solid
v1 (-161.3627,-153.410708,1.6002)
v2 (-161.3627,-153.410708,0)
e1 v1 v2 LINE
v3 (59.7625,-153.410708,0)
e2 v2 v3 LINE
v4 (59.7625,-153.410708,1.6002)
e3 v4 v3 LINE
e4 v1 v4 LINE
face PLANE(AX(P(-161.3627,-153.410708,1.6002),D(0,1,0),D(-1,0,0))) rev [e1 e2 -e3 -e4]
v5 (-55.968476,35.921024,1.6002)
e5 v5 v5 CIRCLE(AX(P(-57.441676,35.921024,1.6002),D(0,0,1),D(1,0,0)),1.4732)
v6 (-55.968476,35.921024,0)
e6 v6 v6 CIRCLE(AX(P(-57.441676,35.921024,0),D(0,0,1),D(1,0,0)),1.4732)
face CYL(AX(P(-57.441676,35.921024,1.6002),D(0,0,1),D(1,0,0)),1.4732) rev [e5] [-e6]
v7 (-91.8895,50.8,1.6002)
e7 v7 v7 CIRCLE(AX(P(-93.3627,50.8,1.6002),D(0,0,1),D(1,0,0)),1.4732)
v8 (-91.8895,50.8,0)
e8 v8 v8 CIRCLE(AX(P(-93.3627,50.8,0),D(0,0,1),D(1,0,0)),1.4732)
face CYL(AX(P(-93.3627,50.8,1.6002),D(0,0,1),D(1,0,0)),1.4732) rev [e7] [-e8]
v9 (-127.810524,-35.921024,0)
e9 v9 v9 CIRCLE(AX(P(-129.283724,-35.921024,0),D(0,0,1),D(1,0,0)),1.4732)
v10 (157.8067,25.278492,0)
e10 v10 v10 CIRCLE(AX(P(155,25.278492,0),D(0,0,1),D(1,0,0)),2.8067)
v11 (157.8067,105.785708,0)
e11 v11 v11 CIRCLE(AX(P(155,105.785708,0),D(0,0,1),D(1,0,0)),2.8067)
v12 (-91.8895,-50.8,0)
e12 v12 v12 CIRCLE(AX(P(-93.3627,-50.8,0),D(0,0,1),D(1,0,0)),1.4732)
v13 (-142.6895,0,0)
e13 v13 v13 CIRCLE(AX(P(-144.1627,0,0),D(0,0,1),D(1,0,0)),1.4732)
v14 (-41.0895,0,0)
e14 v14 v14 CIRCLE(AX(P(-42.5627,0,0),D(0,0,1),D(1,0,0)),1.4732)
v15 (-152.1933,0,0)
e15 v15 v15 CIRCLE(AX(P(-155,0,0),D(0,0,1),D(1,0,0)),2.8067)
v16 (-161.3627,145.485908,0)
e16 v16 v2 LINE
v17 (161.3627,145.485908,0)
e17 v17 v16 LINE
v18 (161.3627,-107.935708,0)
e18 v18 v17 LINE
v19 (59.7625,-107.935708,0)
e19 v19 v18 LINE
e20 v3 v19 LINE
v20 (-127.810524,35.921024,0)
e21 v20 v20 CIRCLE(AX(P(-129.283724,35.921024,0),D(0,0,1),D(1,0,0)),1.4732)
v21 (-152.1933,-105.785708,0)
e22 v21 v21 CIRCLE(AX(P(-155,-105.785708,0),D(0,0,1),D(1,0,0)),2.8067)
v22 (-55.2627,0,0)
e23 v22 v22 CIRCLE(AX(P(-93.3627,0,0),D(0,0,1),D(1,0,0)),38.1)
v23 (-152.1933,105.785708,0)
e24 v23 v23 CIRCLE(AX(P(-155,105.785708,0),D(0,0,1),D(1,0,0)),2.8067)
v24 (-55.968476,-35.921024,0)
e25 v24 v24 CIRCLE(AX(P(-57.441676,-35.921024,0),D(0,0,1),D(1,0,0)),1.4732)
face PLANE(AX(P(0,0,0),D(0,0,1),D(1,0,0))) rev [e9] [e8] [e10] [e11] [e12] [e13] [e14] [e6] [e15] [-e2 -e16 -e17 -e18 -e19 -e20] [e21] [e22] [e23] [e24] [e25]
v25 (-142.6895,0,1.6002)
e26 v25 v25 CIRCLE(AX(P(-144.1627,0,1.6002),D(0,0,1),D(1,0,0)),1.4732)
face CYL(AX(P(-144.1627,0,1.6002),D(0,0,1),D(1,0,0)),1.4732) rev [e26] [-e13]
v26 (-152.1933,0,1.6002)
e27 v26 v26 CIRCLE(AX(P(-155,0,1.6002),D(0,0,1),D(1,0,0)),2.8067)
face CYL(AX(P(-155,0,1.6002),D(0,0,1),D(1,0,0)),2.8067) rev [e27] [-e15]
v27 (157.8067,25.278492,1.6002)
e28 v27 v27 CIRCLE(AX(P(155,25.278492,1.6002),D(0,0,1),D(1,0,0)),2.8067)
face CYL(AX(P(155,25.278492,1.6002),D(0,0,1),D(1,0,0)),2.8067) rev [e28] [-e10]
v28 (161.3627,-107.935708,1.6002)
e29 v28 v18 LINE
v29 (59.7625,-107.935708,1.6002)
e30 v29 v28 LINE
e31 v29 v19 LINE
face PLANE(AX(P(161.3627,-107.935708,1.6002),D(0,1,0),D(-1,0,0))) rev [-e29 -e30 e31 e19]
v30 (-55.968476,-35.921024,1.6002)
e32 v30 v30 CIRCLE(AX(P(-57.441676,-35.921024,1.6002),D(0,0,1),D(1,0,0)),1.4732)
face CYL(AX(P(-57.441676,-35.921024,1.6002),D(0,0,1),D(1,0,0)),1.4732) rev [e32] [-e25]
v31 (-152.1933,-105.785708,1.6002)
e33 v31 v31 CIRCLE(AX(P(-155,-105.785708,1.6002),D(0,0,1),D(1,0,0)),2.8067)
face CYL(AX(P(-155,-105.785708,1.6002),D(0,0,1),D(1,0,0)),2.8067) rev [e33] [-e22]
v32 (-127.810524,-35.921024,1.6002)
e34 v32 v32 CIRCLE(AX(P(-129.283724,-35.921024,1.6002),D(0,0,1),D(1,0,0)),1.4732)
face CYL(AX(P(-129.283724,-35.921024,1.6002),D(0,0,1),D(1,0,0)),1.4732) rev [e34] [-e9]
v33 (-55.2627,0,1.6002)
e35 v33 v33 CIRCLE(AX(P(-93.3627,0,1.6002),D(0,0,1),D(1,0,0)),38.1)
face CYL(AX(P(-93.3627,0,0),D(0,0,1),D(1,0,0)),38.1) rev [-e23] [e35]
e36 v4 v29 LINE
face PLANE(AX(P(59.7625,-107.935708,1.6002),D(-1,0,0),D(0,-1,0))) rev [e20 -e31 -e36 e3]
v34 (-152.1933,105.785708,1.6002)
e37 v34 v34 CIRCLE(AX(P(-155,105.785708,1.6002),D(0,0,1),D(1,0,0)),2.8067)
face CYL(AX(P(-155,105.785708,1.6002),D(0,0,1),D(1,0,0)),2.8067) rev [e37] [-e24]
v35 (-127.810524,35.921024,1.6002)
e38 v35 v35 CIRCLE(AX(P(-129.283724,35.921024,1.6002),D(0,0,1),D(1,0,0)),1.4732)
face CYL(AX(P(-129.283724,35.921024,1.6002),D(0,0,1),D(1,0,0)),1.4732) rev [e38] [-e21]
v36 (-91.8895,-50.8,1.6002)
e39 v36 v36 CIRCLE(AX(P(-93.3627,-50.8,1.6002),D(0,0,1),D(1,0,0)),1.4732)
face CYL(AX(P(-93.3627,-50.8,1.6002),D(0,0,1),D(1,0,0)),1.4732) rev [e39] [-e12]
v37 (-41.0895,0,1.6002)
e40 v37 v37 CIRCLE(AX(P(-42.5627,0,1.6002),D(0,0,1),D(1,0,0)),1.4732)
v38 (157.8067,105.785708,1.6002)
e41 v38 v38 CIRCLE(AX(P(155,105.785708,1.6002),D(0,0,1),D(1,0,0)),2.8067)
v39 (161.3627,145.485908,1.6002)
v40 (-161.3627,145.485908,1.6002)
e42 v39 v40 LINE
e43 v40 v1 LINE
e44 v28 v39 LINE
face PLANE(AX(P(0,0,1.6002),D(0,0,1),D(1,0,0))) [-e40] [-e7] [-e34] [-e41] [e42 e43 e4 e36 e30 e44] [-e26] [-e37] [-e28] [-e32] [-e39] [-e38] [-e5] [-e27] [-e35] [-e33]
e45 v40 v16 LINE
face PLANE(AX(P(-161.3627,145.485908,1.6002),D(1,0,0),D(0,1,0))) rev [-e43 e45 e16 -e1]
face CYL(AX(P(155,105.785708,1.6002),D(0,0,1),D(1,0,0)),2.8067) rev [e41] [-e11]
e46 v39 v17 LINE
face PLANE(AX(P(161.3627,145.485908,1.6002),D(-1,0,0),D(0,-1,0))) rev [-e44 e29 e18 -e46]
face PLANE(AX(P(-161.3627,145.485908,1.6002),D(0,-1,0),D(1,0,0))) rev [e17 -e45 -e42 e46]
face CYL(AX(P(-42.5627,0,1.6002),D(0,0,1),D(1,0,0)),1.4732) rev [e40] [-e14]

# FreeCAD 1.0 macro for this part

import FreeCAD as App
import Part
import Sketcher
Q = App.Units.Quantity

doc = App.newDocument("Part")
body = doc.addObject("PartDesign::Body", "Body")

sketch1 = body.newObject("Sketcher::SketchObject", "Sketch")
sketch1.AttachmentSupport = (doc.getObject("XY_Plane"), [""])
sketch1.MapMode = "FlatFace"
sketch1.addGeometry(Part.LineSegment(App.Vector(60, -108, 0), App.Vector(161, -108, 0)), False)
sketch1.addGeometry(Part.LineSegment(App.Vector(161, -108, 0), App.Vector(161, 145, 0)), False)
sketch1.addGeometry(Part.LineSegment(App.Vector(161, 145, 0), App.Vector(-161, 145, 0)), False)
sketch1.addGeometry(Part.LineSegment(App.Vector(-161, 145, 0), App.Vector(-161, -153, 0)), False)
sketch1.addGeometry(Part.LineSegment(App.Vector(-161, -153, 0), App.Vector(60, -153, 0)), False)
sketch1.addGeometry(Part.LineSegment(App.Vector(60, -153, 0), App.Vector(60, -108, 0)), False)
sketch1.addConstraint(Sketcher.Constraint("Coincident", 0, 2, 1, 1))
sketch1.addConstraint(Sketcher.Constraint("Coincident", 1, 2, 2, 1))
sketch1.addConstraint(Sketcher.Constraint("Coincident", 2, 2, 3, 1))
sketch1.addConstraint(Sketcher.Constraint("Coincident", 3, 2, 4, 1))
sketch1.addConstraint(Sketcher.Constraint("Coincident", 4, 2, 5, 1))
sketch1.addConstraint(Sketcher.Constraint("Coincident", 5, 2, 0, 1))
sketch1.addConstraint(Sketcher.Constraint("Horizontal", 0))
sketch1.addConstraint(Sketcher.Constraint("Vertical", 1))
sketch1.addConstraint(Sketcher.Constraint("Horizontal", 2))
sketch1.addConstraint(Sketcher.Constraint("Vertical", 3))
sketch1.addConstraint(Sketcher.Constraint("Horizontal", 4))
sketch1.addConstraint(Sketcher.Constraint("Vertical", 5))
sketch1.addConstraint(Sketcher.Constraint("DistanceX", 0, 1, 0, 2, Q("101.6002 mm")))
sketch1.addConstraint(Sketcher.Constraint("DistanceX", 2, 2, 2, 1, Q("322.7254 mm")))
sketch1.addConstraint(Sketcher.Constraint("DistanceY", 5, 1, 5, 2, Q("45.475 mm")))
sketch1.addConstraint(Sketcher.Constraint("DistanceX", -1, 1, 0, 2, Q("161.3627 mm")))
sketch1.addConstraint(Sketcher.Constraint("DistanceY", 1, 1, 1, 2, Q("253.421617 mm")))
sketch1.addConstraint(Sketcher.Constraint("DistanceY", 0, 2, -1, 1, Q("107.935708 mm")))
pad1 = body.newObject("PartDesign::Pad", "Pad")
pad1.Profile = sketch1
pad1.Length = Q("0.063 in")

sketch2 = body.newObject("Sketcher::SketchObject", "Sketch001")
sketch2.AttachmentSupport = (doc.getObject("XY_Plane"), [""])
sketch2.MapMode = "FlatFace"
sketch2.AttachmentOffset = App.Placement(App.Vector(0, 0, 0.063 * 25.4), App.Rotation())
sketch2.addGeometry(Part.Circle(App.Vector(-93, 0, 0), App.Vector(0, 0, 1), 38), False)
sketch2.addConstraint(Sketcher.Constraint("PointOnObject", 0, 3, -1))
sketch2.addConstraint(Sketcher.Constraint("Diameter", 0, Q("3 in")))
sketch2.addConstraint(Sketcher.Constraint("DistanceX", 0, 3, -1, 1, Q("93.3627 mm")))
pocket1 = body.newObject("PartDesign::Pocket", "Pocket")
pocket1.Profile = sketch2
pocket1.Type = "ThroughAll"

sketch3 = body.newObject("Sketcher::SketchObject", "Sketch002")
sketch3.AttachmentSupport = (doc.getObject("YZ_Plane"), [""])
sketch3.MapMode = "FlatFace"
sketch3.AttachmentOffset = App.Placement(App.Vector(0, 0, -93.3627), App.Rotation())
sketch3.addGeometry(Part.LineSegment(App.Vector(50.8, -172.3, 0), App.Vector(50.8, 1.6, 0)), False)
sketch3.addGeometry(Part.LineSegment(App.Vector(50.8, 1.6, 0), App.Vector(49.3, 1.6, 0)), False)
sketch3.addGeometry(Part.LineSegment(App.Vector(49.3, 1.6, 0), App.Vector(49.3, -171.4, 0)), False)
sketch3.addGeometry(Part.LineSegment(App.Vector(49.3, -171.4, 0), App.Vector(50.8, -172.3, 0)), False)
sketch3.addGeometry(Part.LineSegment(App.Vector(50.8, 1.6, 0), App.Vector(50.8, -172.3, 0)), True)
sketch3.addConstraint(Sketcher.Constraint("Coincident", 0, 2, 1, 1))
sketch3.addConstraint(Sketcher.Constraint("Coincident", 1, 2, 2, 1))
sketch3.addConstraint(Sketcher.Constraint("Coincident", 2, 2, 3, 1))
sketch3.addConstraint(Sketcher.Constraint("Coincident", 3, 2, 0, 1))
sketch3.addConstraint(Sketcher.Constraint("Vertical", 0))
sketch3.addConstraint(Sketcher.Constraint("Horizontal", 1))
sketch3.addConstraint(Sketcher.Constraint("Vertical", 2))
sketch3.addConstraint(Sketcher.Constraint("Vertical", 4))
sketch3.addConstraint(Sketcher.Constraint("Coincident", 4, 1, 0, 2))
sketch3.addConstraint(Sketcher.Constraint("Equal", 0, 4))
sketch3.addConstraint(Sketcher.Constraint("DistanceX", -1, 1, 0, 2, Q("2 in")))
sketch3.addConstraint(Sketcher.Constraint("Angle", 3, Q("-31 deg")))
sketch3.addConstraint(Sketcher.Constraint("DistanceX", 1, 2, 1, 1, Q("0.058 in")))
sketch3.addConstraint(Sketcher.Constraint("DistanceY", -1, 1, 0, 2, Q("0.063 in")))
sketch3.addConstraint(Sketcher.Constraint("DistanceY", 2, 2, 2, 1, Q("172.97 mm")))
groove = body.newObject("PartDesign::Groove", "Groove")
groove.Profile = sketch3
groove.ReferenceAxis = (sketch3, ["Axis0"])
groove.Angle = 360
doc.recompute()

datumline = body.newObject("PartDesign::Line", "DatumLine")
datumline.Placement = App.Placement(App.Vector(-93.3627, 0, 0), App.Rotation(App.Vector(0, 0, 1), App.Vector(0, 0, 1)))
polarpattern = body.newObject("PartDesign::PolarPattern", "PolarPattern")
polarpattern.Originals = [groove]
polarpattern.Axis = (datumline, [""])
polarpattern.Angle = 360
polarpattern.Occurrences = 8
body.Tip = polarpattern

sketch4 = body.newObject("Sketcher::SketchObject", "Sketch003")
sketch4.AttachmentSupport = (doc.getObject("XY_Plane"), [""])
sketch4.MapMode = "FlatFace"
sketch4.AttachmentOffset = App.Placement(App.Vector(0, 0, 0.063 * 25.4), App.Rotation())
sketch4.addGeometry(Part.Circle(App.Vector(-155, 105.8, 0), App.Vector(0, 0, 1), 2.8), False)
sketch4.addGeometry(Part.Circle(App.Vector(-155, 0, 0), App.Vector(0, 0, 1), 2.8), False)
sketch4.addGeometry(Part.Circle(App.Vector(-155, -105.8, 0), App.Vector(0, 0, 1), 2.8), False)
sketch4.addGeometry(Part.Circle(App.Vector(155, 105.8, 0), App.Vector(0, 0, 1), 2.8), False)
sketch4.addGeometry(Part.Circle(App.Vector(155, 25.3, 0), App.Vector(0, 0, 1), 2.8), False)
sketch4.addConstraint(Sketcher.Constraint("Equal", 0, 1))
sketch4.addConstraint(Sketcher.Constraint("Equal", 1, 2))
sketch4.addConstraint(Sketcher.Constraint("Equal", 2, 3))
sketch4.addConstraint(Sketcher.Constraint("Equal", 3, 4))
sketch4.addConstraint(Sketcher.Constraint("Symmetric", 2, 3, 3, 3, -1, 1))
sketch4.addConstraint(Sketcher.Constraint("Symmetric", 0, 3, 3, 3, -2))
sketch4.addConstraint(Sketcher.Constraint("PointOnObject", 1, 3, -1))
sketch4.addConstraint(Sketcher.Constraint("Vertical", 0, 3, 1, 3))
sketch4.addConstraint(Sketcher.Constraint("Vertical", 3, 3, 4, 3))
sketch4.addConstraint(Sketcher.Constraint("Diameter", 0, Q("0.221 in")))
sketch4.addConstraint(Sketcher.Constraint("DistanceX", 0, 3, -1, 1, Q("155 mm")))
sketch4.addConstraint(Sketcher.Constraint("DistanceY", 2, 3, 4, 3, Q("131.0642 mm")))
sketch4.addConstraint(Sketcher.Constraint("DistanceY", -1, 1, 0, 3, Q("105.785708 mm")))
doc.recompute()
hole = body.newObject("PartDesign::Hole", "Hole")
hole.Profile = sketch4
hole.ThreadType = "None"
hole.Diameter = Q("0.221 in")
hole.DepthType = "Dimension"
hole.Depth = 9.53
hole.DrillPoint = "Angled"
hole.DrillPointAngle = 118

doc.recompute()
